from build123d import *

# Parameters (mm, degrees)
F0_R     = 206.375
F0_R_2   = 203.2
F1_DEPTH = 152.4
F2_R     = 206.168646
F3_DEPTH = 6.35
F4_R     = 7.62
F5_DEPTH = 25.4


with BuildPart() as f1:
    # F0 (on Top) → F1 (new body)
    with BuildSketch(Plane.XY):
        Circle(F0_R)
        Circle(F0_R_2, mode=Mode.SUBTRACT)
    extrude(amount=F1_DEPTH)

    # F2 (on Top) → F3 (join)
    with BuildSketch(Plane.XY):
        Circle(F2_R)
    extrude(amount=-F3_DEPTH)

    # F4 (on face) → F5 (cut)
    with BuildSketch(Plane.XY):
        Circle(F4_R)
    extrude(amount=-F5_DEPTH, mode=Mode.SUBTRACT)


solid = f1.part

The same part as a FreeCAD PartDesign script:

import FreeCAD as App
import Part
import Sketcher

V = App.Vector
Q = App.Units.Quantity

doc = App.newDocument("Part")
params = doc.addObject("Spreadsheet::Sheet", "Params")
for row, (alias, value) in enumerate([
    ("sketch1_diameter", "16 in"),
    ("sketch1_diameter2", "16.25 in"),
    ("pad1_length", "6 in"),
    ("pad2_length", "0.25 in"),
    ("sketch3_diameter", "0.6 in"),
    ("pocket1_length", "1 in"),
], start=1):
    params.set(f"A{row}", alias)
    params.set(f"B{row}", "=" + value)
    params.setAlias(f"B{row}", alias)

body = doc.addObject("PartDesign::Body", "Body")

# Sketch on XY plane
sketch1 = doc.addObject("Sketcher::SketchObject", "Sketch")
body.addObject(sketch1)
sketch1.AttachmentSupport = (doc.XY_Plane, [""])
sketch1.MapMode = "FlatFace"
sketch1.addGeometry([
    Part.Circle(V(0, 0, 0), V(0, 0, 1), 206.375),
    Part.Circle(V(0, 0, 0), V(0, 0, 1), 203.2),
], False)
sketch1.addConstraint([
    Sketcher.Constraint("Coincident", 0, 3, -1, 1),
    Sketcher.Constraint("Coincident", 1, 3, -1, 1),
    Sketcher.Constraint("Diameter", 1, Q("16 in")),
    Sketcher.Constraint("Diameter", 0, Q("16.25 in")),
])
sketch1.setExpression("Constraints[2]", "Params.sketch1_diameter")
sketch1.setExpression("Constraints[3]", "Params.sketch1_diameter2")
pad1 = doc.addObject("PartDesign::Pad", "Pad")
body.addObject(pad1)
pad1.Profile = sketch1
pad1.setExpression("Length", "Params.pad1_length")

# Sketch on XY plane
sketch2 = doc.addObject("Sketcher::SketchObject", "Sketch001")
body.addObject(sketch2)
sketch2.AttachmentSupport = (doc.XY_Plane, [""])
sketch2.MapMode = "FlatFace"
sketch2.addGeometry(Part.Circle(V(0, 0, 0), V(0, 0, 1), 206.168646), False)
sketch2.addConstraint([
    Sketcher.Constraint("Coincident", 0, 3, -1, 1),
    Sketcher.Constraint("Diameter", 0, 412.337292),
])
pad2 = doc.addObject("PartDesign::Pad", "Pad001")
body.addObject(pad2)
pad2.Profile = sketch2
pad2.setExpression("Length", "Params.pad2_length")
pad2.Reversed = True

# Sketch on XY plane
sketch3 = doc.addObject("Sketcher::SketchObject", "Sketch002")
body.addObject(sketch3)
sketch3.AttachmentSupport = (doc.XY_Plane, [""])
sketch3.MapMode = "FlatFace"
sketch3.addGeometry(Part.Circle(V(0, 0, 0), V(0, 0, 1), 7.62), False)
sketch3.addConstraint([
    Sketcher.Constraint("Coincident", 0, 3, -1, 1),
    Sketcher.Constraint("Diameter", 0, Q("0.6 in")),
])
sketch3.setExpression("Constraints[1]", "Params.sketch3_diameter")
pocket1 = doc.addObject("PartDesign::Pocket", "Pocket")
body.addObject(pocket1)
pocket1.Profile = sketch3
pocket1.setExpression("Length", "Params.pocket1_length")

doc.recompute()
